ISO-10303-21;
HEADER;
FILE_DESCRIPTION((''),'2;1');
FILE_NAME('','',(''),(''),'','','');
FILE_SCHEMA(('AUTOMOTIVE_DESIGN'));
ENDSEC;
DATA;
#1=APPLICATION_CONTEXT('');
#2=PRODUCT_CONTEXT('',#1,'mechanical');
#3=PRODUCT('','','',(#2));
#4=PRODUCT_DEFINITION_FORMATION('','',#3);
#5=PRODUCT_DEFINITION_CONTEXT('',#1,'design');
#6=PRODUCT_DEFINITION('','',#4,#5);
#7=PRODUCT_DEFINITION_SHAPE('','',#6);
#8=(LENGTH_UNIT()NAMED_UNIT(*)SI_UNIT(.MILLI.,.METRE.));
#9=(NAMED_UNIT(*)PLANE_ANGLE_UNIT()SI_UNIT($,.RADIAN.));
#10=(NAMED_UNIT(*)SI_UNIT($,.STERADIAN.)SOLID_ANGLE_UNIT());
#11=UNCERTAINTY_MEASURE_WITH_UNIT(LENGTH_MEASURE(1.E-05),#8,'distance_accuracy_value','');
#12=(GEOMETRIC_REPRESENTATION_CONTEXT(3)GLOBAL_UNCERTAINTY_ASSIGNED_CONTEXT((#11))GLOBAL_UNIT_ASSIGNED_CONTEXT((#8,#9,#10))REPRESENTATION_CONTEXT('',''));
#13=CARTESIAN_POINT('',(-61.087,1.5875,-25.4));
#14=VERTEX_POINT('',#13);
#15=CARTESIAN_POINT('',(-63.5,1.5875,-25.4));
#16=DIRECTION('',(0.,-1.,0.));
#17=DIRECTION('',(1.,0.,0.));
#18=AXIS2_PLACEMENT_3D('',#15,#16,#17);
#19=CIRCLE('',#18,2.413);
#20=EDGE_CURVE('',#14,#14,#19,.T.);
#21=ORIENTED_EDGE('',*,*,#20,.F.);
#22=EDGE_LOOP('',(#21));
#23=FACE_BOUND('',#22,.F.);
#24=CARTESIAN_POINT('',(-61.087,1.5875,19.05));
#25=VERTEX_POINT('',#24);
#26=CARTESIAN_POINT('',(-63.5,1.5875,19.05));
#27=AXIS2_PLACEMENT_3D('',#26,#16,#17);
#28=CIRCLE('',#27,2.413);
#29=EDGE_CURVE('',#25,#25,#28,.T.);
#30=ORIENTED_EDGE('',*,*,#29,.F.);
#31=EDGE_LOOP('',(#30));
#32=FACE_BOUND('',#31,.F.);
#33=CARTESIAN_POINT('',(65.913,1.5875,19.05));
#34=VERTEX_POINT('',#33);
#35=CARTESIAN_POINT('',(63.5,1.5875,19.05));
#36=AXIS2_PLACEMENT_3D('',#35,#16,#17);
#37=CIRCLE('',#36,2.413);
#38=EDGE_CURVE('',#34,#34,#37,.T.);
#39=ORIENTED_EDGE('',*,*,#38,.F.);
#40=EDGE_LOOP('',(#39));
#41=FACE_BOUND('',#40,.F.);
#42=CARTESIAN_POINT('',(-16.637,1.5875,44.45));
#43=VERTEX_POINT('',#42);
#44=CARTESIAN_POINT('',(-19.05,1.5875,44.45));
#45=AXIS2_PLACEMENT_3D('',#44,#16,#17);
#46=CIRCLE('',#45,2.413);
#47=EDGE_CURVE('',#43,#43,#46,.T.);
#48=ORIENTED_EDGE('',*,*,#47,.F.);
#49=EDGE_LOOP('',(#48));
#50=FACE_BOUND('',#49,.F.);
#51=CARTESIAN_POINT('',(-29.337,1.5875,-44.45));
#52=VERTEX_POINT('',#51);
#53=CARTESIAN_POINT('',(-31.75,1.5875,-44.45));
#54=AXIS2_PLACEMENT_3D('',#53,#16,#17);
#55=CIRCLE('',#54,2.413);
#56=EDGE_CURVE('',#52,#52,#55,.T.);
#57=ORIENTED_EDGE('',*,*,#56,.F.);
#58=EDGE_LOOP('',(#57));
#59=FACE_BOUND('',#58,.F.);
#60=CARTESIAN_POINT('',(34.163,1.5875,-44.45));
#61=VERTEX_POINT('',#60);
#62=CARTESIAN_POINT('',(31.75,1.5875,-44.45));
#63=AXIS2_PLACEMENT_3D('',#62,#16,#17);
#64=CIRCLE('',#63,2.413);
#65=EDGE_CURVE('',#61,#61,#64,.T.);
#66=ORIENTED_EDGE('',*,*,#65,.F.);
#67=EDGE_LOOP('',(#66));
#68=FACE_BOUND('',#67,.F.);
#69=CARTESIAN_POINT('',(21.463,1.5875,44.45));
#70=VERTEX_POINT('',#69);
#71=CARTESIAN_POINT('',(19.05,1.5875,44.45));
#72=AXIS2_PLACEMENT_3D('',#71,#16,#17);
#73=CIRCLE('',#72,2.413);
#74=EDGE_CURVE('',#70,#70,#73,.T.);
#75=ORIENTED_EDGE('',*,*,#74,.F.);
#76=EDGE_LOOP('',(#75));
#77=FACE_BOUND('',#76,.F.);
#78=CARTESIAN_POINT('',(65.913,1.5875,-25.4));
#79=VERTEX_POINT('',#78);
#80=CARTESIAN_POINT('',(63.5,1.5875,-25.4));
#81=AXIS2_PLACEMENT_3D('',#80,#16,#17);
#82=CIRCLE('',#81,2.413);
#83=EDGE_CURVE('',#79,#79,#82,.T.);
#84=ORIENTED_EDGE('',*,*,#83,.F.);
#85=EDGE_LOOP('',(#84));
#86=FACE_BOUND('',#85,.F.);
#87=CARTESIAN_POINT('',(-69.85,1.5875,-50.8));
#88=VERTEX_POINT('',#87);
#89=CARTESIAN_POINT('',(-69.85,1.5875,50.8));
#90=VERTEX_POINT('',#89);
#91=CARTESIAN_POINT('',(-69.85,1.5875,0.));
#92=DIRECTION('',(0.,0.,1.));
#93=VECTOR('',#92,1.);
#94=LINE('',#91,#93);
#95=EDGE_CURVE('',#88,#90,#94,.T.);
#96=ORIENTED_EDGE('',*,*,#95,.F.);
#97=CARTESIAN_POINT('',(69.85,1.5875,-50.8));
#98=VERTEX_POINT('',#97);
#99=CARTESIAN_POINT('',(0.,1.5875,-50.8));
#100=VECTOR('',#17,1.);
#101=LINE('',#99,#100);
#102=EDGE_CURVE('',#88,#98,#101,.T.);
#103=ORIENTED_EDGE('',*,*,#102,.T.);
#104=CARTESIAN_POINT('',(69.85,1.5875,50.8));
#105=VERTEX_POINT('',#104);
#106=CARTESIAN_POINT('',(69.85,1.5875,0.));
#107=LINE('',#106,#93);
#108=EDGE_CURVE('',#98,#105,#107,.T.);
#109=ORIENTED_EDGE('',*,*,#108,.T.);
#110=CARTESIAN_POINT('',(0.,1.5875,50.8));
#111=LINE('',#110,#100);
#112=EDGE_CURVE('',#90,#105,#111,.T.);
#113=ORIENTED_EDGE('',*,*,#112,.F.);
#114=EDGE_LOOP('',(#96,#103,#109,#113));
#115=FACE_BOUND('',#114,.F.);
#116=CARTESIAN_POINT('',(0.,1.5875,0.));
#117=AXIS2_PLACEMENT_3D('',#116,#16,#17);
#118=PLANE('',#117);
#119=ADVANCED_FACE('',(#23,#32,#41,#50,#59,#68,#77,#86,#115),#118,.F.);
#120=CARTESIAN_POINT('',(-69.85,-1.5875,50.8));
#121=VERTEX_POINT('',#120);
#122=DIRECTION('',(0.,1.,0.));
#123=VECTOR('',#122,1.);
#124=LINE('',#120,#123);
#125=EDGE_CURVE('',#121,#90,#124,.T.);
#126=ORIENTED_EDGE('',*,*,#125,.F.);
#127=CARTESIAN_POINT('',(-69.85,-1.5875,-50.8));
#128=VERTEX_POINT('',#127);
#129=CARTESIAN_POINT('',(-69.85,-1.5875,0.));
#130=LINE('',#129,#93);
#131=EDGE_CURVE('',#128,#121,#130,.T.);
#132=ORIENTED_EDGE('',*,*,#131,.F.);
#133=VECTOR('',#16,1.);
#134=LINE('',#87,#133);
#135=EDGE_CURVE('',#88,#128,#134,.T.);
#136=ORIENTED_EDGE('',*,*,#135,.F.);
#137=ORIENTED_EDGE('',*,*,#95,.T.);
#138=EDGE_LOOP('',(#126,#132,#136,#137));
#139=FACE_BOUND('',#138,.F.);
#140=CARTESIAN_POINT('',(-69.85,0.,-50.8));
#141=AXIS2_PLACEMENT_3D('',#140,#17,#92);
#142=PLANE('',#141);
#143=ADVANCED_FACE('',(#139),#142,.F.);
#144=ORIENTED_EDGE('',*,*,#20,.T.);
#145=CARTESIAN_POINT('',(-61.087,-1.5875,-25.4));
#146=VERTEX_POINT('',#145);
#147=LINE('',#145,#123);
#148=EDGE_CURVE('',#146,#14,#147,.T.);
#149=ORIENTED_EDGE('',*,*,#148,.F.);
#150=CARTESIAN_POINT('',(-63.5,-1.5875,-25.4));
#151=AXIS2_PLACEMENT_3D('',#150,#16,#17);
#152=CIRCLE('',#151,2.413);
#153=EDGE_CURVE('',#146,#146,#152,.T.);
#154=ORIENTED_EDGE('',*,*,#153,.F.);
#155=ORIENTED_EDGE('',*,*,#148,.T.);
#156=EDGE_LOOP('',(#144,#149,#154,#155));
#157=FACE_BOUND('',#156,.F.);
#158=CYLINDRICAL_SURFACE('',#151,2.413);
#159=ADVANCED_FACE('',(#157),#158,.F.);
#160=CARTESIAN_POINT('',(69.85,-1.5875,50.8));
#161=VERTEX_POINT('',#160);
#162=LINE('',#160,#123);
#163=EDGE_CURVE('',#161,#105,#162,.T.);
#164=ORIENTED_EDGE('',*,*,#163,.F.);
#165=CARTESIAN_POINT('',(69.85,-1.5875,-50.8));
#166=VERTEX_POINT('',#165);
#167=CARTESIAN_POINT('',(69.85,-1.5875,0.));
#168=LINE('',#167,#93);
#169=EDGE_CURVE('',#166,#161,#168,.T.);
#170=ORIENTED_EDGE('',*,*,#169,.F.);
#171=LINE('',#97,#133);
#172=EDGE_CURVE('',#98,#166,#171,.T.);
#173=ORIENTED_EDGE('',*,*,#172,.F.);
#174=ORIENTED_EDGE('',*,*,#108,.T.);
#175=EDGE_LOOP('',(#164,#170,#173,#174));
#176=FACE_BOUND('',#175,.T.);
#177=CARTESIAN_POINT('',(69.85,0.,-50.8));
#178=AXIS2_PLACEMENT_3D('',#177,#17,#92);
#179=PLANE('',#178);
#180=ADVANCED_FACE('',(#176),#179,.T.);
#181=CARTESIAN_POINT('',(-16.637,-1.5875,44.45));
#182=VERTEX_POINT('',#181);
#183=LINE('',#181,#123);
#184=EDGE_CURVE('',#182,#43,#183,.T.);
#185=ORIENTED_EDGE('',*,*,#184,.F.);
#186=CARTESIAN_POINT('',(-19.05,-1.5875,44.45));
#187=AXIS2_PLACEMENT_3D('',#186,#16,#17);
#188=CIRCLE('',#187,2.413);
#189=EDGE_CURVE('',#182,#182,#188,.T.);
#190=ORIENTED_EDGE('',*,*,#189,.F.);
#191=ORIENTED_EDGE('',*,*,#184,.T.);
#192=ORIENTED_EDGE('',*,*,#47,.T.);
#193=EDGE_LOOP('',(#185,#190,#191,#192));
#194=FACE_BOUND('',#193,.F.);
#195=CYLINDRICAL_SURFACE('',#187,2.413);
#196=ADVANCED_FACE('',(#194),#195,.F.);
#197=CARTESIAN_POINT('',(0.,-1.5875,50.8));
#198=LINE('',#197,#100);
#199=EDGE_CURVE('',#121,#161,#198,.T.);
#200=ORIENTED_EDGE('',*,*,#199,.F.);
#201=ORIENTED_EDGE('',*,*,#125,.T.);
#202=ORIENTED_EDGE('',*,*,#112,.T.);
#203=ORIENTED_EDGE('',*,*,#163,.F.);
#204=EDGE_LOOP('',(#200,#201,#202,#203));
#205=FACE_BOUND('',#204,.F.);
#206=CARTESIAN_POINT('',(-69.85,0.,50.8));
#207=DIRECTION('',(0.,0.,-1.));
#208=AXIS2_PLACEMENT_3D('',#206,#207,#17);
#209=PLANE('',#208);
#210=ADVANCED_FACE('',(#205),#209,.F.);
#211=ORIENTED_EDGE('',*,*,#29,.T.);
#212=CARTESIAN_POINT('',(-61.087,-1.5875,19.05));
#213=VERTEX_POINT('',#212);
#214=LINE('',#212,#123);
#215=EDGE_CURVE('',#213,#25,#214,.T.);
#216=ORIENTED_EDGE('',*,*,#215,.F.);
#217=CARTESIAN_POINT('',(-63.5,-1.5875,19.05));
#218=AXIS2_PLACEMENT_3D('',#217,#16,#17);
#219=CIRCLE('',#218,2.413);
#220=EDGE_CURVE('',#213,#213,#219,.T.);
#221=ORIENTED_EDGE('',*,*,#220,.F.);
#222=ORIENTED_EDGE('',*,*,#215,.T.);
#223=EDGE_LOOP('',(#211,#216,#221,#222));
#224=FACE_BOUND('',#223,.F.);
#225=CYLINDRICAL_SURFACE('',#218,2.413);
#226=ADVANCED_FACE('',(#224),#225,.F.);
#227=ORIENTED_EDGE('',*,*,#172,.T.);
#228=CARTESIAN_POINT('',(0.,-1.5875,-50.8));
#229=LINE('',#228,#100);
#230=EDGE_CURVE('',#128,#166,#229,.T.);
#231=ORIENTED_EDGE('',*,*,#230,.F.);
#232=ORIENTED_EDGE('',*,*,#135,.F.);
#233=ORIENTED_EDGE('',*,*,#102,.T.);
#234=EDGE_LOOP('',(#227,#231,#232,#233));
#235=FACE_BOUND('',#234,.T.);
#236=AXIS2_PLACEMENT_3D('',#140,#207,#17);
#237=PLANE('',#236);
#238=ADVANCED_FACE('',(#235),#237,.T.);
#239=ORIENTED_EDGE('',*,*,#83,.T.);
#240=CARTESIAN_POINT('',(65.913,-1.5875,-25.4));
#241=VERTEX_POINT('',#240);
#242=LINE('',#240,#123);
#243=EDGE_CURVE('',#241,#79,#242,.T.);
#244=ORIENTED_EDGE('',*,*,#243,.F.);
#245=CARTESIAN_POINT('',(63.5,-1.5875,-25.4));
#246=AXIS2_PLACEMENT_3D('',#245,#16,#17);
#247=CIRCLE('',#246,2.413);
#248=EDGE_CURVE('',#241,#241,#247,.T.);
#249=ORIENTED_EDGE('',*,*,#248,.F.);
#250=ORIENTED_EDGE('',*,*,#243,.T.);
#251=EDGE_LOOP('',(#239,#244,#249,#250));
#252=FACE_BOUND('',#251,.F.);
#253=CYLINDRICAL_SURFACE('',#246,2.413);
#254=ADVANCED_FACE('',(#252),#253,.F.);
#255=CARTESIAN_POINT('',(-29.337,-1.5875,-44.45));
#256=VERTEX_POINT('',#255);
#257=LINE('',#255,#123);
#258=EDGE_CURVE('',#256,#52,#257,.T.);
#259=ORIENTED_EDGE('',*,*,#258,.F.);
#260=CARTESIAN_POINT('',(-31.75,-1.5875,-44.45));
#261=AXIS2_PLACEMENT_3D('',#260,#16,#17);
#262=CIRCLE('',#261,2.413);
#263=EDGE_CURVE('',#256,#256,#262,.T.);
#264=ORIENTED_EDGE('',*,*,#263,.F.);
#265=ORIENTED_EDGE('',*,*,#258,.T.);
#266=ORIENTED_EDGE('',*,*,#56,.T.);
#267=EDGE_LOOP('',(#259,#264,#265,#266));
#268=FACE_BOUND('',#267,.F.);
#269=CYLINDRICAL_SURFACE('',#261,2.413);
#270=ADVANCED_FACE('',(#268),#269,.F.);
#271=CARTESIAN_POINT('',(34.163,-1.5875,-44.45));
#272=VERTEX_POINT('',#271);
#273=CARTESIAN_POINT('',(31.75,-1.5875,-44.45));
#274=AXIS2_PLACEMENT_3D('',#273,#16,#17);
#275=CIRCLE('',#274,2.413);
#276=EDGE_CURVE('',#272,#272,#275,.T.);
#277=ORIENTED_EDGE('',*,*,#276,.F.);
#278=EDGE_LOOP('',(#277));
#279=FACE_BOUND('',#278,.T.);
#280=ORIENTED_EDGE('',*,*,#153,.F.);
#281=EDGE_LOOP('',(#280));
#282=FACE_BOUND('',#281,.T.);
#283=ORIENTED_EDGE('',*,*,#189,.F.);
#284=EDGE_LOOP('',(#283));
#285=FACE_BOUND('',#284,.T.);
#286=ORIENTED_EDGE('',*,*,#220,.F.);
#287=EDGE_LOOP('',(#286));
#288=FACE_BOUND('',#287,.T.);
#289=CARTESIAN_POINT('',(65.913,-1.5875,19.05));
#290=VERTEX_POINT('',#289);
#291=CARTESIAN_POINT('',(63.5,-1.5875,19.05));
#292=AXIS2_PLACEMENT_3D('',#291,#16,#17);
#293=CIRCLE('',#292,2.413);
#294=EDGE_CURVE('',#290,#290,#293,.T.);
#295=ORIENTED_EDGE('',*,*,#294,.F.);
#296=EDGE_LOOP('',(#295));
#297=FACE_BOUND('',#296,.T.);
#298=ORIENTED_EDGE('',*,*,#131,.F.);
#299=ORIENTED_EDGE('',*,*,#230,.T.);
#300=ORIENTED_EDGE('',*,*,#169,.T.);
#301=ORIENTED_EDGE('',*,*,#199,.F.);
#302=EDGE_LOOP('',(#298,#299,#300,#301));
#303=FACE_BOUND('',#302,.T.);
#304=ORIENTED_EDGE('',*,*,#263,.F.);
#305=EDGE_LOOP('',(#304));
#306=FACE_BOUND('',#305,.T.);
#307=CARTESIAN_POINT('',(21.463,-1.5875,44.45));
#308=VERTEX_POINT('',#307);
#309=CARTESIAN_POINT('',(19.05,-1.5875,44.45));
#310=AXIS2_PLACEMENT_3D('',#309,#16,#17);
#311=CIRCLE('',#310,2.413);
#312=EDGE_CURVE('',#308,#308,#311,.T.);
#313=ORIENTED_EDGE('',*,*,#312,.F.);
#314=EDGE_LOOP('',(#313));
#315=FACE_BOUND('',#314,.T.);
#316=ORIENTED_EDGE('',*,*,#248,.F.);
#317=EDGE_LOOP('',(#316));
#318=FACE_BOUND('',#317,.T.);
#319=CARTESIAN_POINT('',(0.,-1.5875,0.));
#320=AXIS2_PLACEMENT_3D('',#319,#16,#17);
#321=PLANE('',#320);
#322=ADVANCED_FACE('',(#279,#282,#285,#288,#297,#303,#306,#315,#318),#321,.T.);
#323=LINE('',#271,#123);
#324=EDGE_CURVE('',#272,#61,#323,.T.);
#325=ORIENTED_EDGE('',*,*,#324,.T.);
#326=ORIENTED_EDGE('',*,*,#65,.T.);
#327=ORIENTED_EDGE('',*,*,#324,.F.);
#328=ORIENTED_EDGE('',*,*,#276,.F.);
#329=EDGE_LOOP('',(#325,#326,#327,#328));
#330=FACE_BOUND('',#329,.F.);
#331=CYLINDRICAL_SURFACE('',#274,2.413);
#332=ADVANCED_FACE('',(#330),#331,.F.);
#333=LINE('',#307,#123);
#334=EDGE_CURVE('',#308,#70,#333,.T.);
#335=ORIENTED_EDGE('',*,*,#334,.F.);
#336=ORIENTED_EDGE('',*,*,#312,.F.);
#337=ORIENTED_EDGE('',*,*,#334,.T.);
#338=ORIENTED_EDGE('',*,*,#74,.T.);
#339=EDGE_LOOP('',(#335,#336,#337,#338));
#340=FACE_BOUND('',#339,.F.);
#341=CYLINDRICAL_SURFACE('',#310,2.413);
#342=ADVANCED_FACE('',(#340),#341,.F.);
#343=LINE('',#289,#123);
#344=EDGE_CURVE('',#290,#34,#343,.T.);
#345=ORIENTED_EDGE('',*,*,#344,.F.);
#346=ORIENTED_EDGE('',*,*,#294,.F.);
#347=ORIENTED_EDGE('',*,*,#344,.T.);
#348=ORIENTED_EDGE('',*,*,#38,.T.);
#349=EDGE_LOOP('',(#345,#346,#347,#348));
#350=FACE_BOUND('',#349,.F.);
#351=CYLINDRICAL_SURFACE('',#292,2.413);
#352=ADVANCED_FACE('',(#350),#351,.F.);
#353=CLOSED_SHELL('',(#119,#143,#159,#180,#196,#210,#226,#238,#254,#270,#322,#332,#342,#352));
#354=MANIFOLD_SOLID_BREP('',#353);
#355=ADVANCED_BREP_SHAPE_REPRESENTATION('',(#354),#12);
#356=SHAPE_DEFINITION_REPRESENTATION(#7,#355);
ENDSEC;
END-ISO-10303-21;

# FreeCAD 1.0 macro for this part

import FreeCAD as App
import Part
import Sketcher
Q = App.Units.Quantity


def add_polygon(sketch, points):
    """Adds a closed chain of lines whose ends are joined by coincident constraints."""
    first, n = sketch.GeometryCount, len(points)
    for a, b in zip(points, points[1:] + points[:1]):
        sketch.addGeometry(Part.LineSegment(App.Vector(*a, 0), App.Vector(*b, 0)), False)
    for i in range(n):
        sketch.addConstraint(Sketcher.Constraint("Coincident", first + i, 2, first + (i + 1) % n, 1))

doc = App.newDocument("Part")
body = doc.addObject("PartDesign::Body", "Body")

# Sketch on XZ plane
sketch1 = body.newObject("Sketcher::SketchObject", "Sketch")
sketch1.AttachmentSupport = (doc.getObject("XZ_Plane"), [""])
sketch1.MapMode = "FlatFace"
add_polygon(sketch1, [(-69.85, 50.8), (-69.85, -50.8), (69.85, -50.8), (69.85, 50.8)])  # lines 0-3
sketch1.addConstraint([
    Sketcher.Constraint("Vertical", 0),
    Sketcher.Constraint("Horizontal", 1),
    Sketcher.Constraint("Vertical", 2),
    Sketcher.Constraint("Horizontal", 3),
    Sketcher.Constraint("Symmetric", 0, 2, 2, 2, -1, 1),
    Sketcher.Constraint("DistanceY", 0, 2, 0, 1, Q("4 in")),
    Sketcher.Constraint("DistanceX", 1, 1, 1, 2, Q("5.5 in")),
])
pad1 = body.newObject("PartDesign::Pad", "Pad")
pad1.Profile = sketch1
pad1.Length = Q("0.125 in")
pad1.Midplane = True

# Sketch on XZ plane
sketch2 = body.newObject("Sketcher::SketchObject", "Sketch001")
sketch2.AttachmentSupport = (doc.getObject("XZ_Plane"), [""])
sketch2.MapMode = "FlatFace"
sketch2.AttachmentOffset = App.Placement(App.Vector(0, 0, 0.0625 * 25.4), App.Rotation())
sketch2.addGeometry([
    Part.Circle(App.Vector(-19.05, 44.45, 0), App.Vector(0, 0, 1), 2.413),
    Part.Circle(App.Vector(19.05, 44.45, 0), App.Vector(0, 0, 1), 2.413),
], False)
sketch2.addConstraint([
    Sketcher.Constraint("Equal", 0, 1),
    Sketcher.Constraint("Symmetric", 0, 3, 1, 3, -2),
    Sketcher.Constraint("Diameter", 0, Q("0.19 in")),
    Sketcher.Constraint("DistanceX", 0, 3, 1, 3, Q("1.5 in")),
    Sketcher.Constraint("DistanceY", -1, 1, 0, 3, Q("1.75 in")),
])
pocket1 = body.newObject("PartDesign::Pocket", "Pocket")
pocket1.Profile = sketch2
pocket1.Length = Q("0.125 in")

# Sketch on XZ plane
sketch3 = body.newObject("Sketcher::SketchObject", "Sketch002")
sketch3.AttachmentSupport = (doc.getObject("XZ_Plane"), [""])
sketch3.MapMode = "FlatFace"
sketch3.AttachmentOffset = App.Placement(App.Vector(0, 0, 0.0625 * 25.4), App.Rotation())
sketch3.addGeometry([
    Part.Circle(App.Vector(63.5, 19.05, 0), App.Vector(0, 0, 1), 2.413),
    Part.Circle(App.Vector(63.5, -25.4, 0), App.Vector(0, 0, 1), 2.413),
], False)
sketch3.addConstraint([
    Sketcher.Constraint("Equal", 0, 1),
    Sketcher.Constraint("Vertical", 0, 3, 1, 3),
    Sketcher.Constraint("Diameter", 0, Q("0.19 in")),
    Sketcher.Constraint("DistanceY", 1, 3, -1, 1, Q("1 in")),
    Sketcher.Constraint("DistanceX", -1, 1, 0, 3, Q("2.5 in")),
    Sketcher.Constraint("DistanceY", -1, 1, 0, 3, Q("0.75 in")),
])
pocket2 = body.newObject("PartDesign::Pocket", "Pocket001")
pocket2.Profile = sketch3
pocket2.Length = Q("0.125 in")

# Sketch on XZ plane
sketch4 = body.newObject("Sketcher::SketchObject", "Sketch003")
sketch4.AttachmentSupport = (doc.getObject("XZ_Plane"), [""])
sketch4.MapMode = "FlatFace"
sketch4.AttachmentOffset = App.Placement(App.Vector(0, 0, 0.0625 * 25.4), App.Rotation())
sketch4.addGeometry(Part.Circle(App.Vector(-31.75, -44.45, 0), App.Vector(0, 0, 1), 2.413), False)
sketch4.addConstraint([
    Sketcher.Constraint("Diameter", 0, Q("0.19 in")),
    Sketcher.Constraint("DistanceX", 0, 3, -1, 1, Q("1.25 in")),
    Sketcher.Constraint("DistanceY", 0, 3, -1, 1, Q("1.75 in")),
])
pocket3 = body.newObject("PartDesign::Pocket", "Pocket002")
pocket3.Profile = sketch4
pocket3.Length = Q("0.125 in")

# Sketch on XZ plane
sketch5 = body.newObject("Sketcher::SketchObject", "Sketch004")
sketch5.AttachmentSupport = (doc.getObject("XZ_Plane"), [""])
sketch5.MapMode = "FlatFace"
sketch5.AttachmentOffset = App.Placement(App.Vector(0, 0, 0.0625 * 25.4), App.Rotation())
sketch5.addGeometry(Part.Circle(App.Vector(31.75, -44.45, 0), App.Vector(0, 0, 1), 2.413), False)
sketch5.addConstraint([
    Sketcher.Constraint("Diameter", 0, Q("0.19 in")),
    Sketcher.Constraint("DistanceX", -1, 1, 0, 3, Q("1.25 in")),
    Sketcher.Constraint("DistanceY", 0, 3, -1, 1, Q("1.75 in")),
])
pocket4 = body.newObject("PartDesign::Pocket", "Pocket003")
pocket4.Profile = sketch5
pocket4.Length = Q("0.125 in")

# Sketch on XZ plane
sketch6 = body.newObject("Sketcher::SketchObject", "Sketch005")
sketch6.AttachmentSupport = (doc.getObject("XZ_Plane"), [""])
sketch6.MapMode = "FlatFace"
sketch6.AttachmentOffset = App.Placement(App.Vector(0, 0, 0.0625 * 25.4), App.Rotation())
sketch6.addGeometry(Part.Circle(App.Vector(-63.5, 19.05, 0), App.Vector(0, 0, 1), 2.413), False)
sketch6.addConstraint([
    Sketcher.Constraint("Diameter", 0, Q("0.19 in")),
    Sketcher.Constraint("DistanceX", 0, 3, -1, 1, Q("2.5 in")),
    Sketcher.Constraint("DistanceY", -1, 1, 0, 3, Q("0.75 in")),
])
pocket5 = body.newObject("PartDesign::Pocket", "Pocket004")
pocket5.Profile = sketch6
pocket5.Length = Q("0.125 in")

# Sketch on XZ plane
sketch7 = body.newObject("Sketcher::SketchObject", "Sketch006")
sketch7.AttachmentSupport = (doc.getObject("XZ_Plane"), [""])
sketch7.MapMode = "FlatFace"
sketch7.AttachmentOffset = App.Placement(App.Vector(0, 0, 0.0625 * 25.4), App.Rotation())
sketch7.addGeometry(Part.Circle(App.Vector(-63.5, -25.4, 0), App.Vector(0, 0, 1), 2.413), False)
sketch7.addConstraint([
    Sketcher.Constraint("Diameter", 0, Q("0.19 in")),
    Sketcher.Constraint("DistanceY", 0, 3, -1, 1, Q("1 in")),
    Sketcher.Constraint("DistanceX", 0, 3, -1, 1, Q("2.5 in")),
])
pocket6 = body.newObject("PartDesign::Pocket", "Pocket005")
pocket6.Profile = sketch7
pocket6.Length = Q("0.125 in")

doc.recompute()
